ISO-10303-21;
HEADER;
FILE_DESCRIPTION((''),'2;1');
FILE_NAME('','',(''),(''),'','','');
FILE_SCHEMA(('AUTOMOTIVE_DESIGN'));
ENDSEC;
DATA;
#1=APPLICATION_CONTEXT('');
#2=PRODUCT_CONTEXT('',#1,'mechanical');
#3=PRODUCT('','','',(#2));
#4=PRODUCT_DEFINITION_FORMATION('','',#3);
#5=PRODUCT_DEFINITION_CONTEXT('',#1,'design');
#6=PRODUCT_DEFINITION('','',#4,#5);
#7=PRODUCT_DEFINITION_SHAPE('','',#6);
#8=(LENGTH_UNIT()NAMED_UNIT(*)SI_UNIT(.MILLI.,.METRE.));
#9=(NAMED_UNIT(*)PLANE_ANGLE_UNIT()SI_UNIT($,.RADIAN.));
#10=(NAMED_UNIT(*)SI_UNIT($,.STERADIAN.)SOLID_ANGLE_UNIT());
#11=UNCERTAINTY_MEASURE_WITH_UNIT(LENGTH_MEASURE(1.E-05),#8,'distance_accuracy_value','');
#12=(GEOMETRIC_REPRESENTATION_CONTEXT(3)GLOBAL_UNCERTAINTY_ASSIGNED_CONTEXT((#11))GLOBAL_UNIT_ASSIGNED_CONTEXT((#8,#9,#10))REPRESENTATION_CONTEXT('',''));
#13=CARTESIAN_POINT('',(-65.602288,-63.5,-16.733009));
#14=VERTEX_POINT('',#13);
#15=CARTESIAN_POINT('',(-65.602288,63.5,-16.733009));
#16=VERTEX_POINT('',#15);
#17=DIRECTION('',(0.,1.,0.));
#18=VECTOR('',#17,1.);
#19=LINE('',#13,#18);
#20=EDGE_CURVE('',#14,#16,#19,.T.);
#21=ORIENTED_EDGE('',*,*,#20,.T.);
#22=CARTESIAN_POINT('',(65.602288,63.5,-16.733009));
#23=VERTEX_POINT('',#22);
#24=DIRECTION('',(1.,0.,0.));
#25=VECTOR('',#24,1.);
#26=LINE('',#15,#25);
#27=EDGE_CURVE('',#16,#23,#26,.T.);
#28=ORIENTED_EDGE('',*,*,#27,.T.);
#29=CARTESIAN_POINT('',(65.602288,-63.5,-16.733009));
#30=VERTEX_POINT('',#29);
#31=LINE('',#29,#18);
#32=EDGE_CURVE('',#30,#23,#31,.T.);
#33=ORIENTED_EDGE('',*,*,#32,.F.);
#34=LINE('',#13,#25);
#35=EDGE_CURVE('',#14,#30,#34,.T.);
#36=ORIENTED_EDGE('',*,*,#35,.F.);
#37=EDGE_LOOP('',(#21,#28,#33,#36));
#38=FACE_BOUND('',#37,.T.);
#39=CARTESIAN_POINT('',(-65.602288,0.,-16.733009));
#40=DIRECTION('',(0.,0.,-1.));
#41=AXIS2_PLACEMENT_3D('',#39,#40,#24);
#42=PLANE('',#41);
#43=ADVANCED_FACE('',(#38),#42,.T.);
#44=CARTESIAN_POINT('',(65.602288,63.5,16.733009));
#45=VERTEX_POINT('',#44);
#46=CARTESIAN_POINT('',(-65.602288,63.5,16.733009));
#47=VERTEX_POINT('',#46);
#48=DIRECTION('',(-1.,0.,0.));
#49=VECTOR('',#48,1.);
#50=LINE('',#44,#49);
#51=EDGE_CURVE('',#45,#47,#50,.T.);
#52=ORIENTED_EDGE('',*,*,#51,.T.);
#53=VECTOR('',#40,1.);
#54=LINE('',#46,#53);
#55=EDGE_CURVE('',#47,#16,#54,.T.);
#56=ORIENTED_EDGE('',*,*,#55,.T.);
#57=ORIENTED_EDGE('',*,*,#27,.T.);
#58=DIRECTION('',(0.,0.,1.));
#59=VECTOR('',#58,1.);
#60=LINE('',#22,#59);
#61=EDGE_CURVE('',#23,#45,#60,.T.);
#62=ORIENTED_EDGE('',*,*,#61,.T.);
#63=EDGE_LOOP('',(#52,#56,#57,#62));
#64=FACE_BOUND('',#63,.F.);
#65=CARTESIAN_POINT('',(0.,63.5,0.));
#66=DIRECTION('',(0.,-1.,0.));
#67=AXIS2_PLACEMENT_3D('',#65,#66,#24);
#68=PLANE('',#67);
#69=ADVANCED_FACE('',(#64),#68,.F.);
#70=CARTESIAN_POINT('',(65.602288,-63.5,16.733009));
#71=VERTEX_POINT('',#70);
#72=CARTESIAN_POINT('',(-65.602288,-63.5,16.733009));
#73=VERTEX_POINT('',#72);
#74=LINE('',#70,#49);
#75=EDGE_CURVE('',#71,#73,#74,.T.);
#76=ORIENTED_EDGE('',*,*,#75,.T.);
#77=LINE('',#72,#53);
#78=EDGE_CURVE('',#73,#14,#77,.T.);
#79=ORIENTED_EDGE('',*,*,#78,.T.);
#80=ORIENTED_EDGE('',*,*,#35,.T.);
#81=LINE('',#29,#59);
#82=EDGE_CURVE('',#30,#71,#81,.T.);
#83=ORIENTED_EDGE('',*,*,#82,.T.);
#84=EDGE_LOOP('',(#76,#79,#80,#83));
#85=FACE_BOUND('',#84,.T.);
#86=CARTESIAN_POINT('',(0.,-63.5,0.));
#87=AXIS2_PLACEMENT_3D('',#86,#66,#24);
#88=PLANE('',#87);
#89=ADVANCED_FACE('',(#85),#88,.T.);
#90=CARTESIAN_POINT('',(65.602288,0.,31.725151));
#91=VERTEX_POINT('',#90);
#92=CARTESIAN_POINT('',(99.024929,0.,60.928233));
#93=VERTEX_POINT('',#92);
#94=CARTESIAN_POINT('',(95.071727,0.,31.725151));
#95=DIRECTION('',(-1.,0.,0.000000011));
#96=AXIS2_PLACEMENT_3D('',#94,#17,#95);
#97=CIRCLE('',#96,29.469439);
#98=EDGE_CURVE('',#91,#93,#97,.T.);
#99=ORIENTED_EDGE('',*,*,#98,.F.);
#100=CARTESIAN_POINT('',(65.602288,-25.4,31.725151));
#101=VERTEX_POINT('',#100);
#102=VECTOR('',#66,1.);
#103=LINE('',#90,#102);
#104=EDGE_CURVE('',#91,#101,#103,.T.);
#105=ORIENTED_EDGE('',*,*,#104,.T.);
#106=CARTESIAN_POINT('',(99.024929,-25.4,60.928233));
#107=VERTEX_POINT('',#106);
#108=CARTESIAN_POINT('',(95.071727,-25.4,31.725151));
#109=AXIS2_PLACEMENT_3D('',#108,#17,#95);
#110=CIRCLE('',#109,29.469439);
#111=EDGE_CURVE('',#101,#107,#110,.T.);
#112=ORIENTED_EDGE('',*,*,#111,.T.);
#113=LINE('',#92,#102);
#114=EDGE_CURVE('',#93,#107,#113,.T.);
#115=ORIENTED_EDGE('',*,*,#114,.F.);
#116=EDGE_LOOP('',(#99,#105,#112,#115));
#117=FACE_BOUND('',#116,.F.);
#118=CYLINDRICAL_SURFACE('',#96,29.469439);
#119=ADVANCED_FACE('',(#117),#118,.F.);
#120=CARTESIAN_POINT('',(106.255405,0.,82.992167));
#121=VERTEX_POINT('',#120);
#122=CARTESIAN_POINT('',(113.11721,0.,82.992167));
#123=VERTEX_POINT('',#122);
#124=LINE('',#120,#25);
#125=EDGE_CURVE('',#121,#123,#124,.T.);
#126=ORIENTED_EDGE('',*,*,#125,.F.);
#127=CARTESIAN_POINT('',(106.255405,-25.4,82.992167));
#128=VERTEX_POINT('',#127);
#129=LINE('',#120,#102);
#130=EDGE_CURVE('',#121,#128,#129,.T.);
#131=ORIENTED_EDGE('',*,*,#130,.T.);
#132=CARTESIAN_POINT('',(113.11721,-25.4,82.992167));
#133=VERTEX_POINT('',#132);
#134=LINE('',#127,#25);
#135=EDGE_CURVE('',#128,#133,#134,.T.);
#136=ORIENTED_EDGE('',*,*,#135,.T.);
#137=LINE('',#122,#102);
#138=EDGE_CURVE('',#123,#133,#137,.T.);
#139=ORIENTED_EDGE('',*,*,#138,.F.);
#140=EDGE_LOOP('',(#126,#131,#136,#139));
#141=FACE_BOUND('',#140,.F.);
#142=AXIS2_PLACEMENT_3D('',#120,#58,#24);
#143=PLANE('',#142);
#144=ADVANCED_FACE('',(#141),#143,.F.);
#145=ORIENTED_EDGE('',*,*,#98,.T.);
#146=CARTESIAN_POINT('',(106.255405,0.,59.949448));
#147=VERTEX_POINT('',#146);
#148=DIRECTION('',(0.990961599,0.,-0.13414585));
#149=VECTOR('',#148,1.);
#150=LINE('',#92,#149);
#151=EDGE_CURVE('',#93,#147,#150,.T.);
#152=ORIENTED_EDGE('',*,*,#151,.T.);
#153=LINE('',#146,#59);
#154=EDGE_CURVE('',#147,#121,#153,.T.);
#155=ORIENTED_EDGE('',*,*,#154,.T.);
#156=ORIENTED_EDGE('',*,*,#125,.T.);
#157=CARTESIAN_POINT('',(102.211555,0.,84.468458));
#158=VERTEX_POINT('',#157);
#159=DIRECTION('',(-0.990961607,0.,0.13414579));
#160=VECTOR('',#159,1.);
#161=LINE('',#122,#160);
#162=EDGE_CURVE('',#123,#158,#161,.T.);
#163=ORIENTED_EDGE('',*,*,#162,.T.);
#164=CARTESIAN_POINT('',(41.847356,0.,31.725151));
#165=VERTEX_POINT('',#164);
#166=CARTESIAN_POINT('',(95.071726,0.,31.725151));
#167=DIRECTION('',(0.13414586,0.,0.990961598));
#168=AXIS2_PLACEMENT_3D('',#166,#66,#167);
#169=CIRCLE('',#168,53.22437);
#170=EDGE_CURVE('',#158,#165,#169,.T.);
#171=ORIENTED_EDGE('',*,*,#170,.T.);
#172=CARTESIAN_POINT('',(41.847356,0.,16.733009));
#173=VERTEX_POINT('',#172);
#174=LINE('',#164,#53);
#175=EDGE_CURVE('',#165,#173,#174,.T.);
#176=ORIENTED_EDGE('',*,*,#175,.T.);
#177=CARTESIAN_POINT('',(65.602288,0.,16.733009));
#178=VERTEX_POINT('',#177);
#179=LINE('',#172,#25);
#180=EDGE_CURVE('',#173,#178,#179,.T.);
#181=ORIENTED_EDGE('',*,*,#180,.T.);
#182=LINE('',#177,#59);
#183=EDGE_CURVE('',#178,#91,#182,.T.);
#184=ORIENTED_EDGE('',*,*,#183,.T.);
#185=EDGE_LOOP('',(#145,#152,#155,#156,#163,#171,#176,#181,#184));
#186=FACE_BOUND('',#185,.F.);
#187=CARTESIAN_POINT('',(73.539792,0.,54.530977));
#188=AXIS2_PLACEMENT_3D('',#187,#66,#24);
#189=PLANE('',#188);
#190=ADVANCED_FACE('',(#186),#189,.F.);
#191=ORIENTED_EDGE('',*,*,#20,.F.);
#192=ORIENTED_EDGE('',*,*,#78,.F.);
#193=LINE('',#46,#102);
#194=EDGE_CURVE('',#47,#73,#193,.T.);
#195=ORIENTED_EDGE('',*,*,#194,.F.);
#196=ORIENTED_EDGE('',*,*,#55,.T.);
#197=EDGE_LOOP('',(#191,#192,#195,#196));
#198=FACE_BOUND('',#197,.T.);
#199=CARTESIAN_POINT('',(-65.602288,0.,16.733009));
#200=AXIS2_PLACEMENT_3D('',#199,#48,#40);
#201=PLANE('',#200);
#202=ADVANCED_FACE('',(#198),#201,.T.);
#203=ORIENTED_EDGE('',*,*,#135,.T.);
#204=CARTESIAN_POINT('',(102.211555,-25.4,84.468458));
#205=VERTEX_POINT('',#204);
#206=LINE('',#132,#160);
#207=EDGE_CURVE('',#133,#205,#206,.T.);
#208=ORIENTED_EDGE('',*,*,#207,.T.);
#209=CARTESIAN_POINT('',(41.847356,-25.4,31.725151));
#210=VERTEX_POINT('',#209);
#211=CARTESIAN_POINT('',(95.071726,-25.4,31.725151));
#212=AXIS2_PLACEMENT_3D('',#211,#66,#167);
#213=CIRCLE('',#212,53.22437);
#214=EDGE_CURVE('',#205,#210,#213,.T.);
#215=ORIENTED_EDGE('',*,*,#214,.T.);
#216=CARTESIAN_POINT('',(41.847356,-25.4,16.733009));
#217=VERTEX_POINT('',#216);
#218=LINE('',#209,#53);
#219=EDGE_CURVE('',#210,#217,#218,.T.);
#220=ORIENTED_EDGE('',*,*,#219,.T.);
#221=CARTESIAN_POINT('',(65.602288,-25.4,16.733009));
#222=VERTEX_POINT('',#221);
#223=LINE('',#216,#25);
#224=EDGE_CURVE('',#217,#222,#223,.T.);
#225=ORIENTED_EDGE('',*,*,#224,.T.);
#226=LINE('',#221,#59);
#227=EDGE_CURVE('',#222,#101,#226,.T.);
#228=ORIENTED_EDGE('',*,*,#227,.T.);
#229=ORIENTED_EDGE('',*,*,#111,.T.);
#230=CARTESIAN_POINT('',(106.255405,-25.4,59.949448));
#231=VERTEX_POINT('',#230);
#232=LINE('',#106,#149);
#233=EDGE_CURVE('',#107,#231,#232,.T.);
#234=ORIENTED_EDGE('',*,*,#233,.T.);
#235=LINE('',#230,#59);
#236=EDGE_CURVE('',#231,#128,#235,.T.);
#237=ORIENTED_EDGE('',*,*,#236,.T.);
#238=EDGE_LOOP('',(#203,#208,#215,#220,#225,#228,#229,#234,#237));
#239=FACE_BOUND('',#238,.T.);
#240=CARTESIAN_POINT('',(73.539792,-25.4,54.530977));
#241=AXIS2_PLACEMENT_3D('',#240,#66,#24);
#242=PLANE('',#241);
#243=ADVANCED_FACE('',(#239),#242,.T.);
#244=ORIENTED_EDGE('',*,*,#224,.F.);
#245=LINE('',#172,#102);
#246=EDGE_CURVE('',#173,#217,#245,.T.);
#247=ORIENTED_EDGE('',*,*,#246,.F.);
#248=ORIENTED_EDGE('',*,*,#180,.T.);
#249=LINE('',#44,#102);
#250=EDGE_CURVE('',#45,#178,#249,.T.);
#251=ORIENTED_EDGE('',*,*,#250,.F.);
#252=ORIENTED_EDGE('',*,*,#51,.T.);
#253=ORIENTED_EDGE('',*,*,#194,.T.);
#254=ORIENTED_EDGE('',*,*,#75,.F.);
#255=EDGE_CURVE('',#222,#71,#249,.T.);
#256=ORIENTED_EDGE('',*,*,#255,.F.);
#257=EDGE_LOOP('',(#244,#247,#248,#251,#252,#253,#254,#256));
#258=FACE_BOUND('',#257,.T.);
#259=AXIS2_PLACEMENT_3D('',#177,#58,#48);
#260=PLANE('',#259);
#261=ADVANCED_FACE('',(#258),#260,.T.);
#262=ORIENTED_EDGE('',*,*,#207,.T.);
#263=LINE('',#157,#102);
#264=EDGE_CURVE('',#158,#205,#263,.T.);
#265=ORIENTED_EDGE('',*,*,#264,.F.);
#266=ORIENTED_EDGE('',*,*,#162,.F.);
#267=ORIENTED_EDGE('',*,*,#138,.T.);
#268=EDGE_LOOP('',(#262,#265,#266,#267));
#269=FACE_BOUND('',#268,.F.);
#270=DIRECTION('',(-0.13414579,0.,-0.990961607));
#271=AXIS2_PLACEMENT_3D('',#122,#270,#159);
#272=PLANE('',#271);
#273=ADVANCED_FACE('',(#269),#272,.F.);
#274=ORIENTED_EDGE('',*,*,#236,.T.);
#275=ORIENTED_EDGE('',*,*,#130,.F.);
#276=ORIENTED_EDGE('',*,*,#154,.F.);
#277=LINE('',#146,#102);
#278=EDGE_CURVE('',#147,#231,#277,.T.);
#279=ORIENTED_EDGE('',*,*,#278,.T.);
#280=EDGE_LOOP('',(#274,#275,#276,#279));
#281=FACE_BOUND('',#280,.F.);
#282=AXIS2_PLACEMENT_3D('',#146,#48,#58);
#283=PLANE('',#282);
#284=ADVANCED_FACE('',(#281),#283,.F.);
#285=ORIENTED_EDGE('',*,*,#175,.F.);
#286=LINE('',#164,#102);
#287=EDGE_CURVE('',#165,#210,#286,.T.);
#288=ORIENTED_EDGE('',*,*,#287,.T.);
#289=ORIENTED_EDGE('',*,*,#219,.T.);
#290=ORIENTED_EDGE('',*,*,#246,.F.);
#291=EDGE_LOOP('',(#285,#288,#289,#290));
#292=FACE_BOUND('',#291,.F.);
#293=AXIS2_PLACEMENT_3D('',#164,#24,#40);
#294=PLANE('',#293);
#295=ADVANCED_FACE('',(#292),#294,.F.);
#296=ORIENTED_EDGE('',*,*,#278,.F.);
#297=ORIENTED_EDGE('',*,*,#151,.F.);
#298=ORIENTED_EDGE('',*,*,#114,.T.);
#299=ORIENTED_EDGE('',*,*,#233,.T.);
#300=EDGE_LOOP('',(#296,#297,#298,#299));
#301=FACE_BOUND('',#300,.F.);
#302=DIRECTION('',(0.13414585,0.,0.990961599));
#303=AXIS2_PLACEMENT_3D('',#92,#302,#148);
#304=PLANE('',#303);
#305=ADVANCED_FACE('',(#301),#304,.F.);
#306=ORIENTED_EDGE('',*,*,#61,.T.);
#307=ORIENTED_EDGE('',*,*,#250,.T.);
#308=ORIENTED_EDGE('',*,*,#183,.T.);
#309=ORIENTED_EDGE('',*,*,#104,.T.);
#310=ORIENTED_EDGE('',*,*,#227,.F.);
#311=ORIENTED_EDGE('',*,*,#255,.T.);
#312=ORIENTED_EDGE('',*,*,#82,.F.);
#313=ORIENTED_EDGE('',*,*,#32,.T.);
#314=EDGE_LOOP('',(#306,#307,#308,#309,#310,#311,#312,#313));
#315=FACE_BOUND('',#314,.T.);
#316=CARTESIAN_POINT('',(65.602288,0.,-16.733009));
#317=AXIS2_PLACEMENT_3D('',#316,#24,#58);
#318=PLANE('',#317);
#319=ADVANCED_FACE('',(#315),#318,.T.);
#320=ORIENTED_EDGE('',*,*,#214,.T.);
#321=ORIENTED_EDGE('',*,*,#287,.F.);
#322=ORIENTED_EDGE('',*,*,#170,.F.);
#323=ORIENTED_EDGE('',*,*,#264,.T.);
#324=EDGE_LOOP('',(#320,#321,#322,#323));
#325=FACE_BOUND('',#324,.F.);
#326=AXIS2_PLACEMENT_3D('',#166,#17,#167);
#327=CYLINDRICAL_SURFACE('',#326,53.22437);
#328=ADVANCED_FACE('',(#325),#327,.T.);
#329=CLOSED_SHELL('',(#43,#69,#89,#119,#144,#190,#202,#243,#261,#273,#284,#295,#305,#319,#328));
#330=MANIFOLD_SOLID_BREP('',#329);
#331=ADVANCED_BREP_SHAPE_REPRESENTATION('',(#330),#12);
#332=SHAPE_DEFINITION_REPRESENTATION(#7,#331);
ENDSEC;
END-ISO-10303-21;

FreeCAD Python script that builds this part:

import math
import FreeCAD as App
import Part
import Sketcher
from FreeCAD import Vector

doc = App.newDocument("Part")
params = doc.addObject("Spreadsheet::Sheet", "Params")
for row, (alias, value) in enumerate([
    ("pad1_length", "5 in"),
    ("pad2_length", "1 in"),
], start=1):
    params.set(f"A{row}", alias)
    params.set(f"B{row}", "=" + value)
    params.setAlias(f"B{row}", alias)

body = doc.addObject("PartDesign::Body", "Body")

# Sketch on XZ plane
sketch1 = doc.addObject("Sketcher::SketchObject", "Sketch")
body.addObject(sketch1)
sketch1.AttachmentSupport = (doc.XZ_Plane, [""])
sketch1.MapMode = "FlatFace"
sketch1.addGeometry([
    Part.LineSegment(Vector(66, -17, 0), Vector(66, 17, 0)),
    Part.LineSegment(Vector(66, 17, 0), Vector(-66, 17, 0)),
    Part.LineSegment(Vector(-66, 17, 0), Vector(-66, -17, 0)),
    Part.LineSegment(Vector(-66, -17, 0), Vector(66, -17, 0)),
], False)
sketch1.addConstraint([
    Sketcher.Constraint("Coincident", 0, 2, 1, 1),
    Sketcher.Constraint("Coincident", 1, 2, 2, 1),
    Sketcher.Constraint("Coincident", 2, 2, 3, 1),
    Sketcher.Constraint("Coincident", 3, 2, 0, 1),
    Sketcher.Constraint("Vertical", 0),
    Sketcher.Constraint("Horizontal", 1),
    Sketcher.Constraint("Vertical", 2),
    Sketcher.Constraint("Horizontal", 3),
    Sketcher.Constraint("Symmetric", 0, 2, 2, 2, -1, 1),
    Sketcher.Constraint("DistanceX", 1, 2, 1, 1, 131.204576),
    Sketcher.Constraint("DistanceY", 0, 1, 0, 2, 33.466018),
])
pad1 = doc.addObject("PartDesign::Pad", "Pad")
body.addObject(pad1)
pad1.Profile = sketch1
pad1.setExpression("Length", "Params.pad1_length")
pad1.Midplane = True

# Sketch on XZ plane
sketch2 = doc.addObject("Sketcher::SketchObject", "Sketch001")
body.addObject(sketch2)
sketch2.AttachmentSupport = (doc.XZ_Plane, [""])
sketch2.MapMode = "FlatFace"
sketch2.addGeometry([
    Part.LineSegment(Vector(42, 17, 0), Vector(66, 17, 0)),  # 0
    Part.LineSegment(Vector(66, 17, 0), Vector(66, 32, 0)),  # 1
    Part.ArcOfCircle(Part.Circle(Vector(95, 32, 0), Vector(0, 0, 1), 29), math.radians(82), math.radians(180)),  # 2
    Part.LineSegment(Vector(99, 61, 0), Vector(106, 60, 0)),  # 3
    Part.LineSegment(Vector(106, 60, 0), Vector(106, 83, 0)),  # 4
    Part.LineSegment(Vector(106, 83, 0), Vector(113, 83, 0)),  # 5
    Part.LineSegment(Vector(113, 83, 0), Vector(102, 84, 0)),  # 6
    Part.ArcOfCircle(Part.Circle(Vector(95, 32, 0), Vector(0, 0, 1), 53), math.radians(82), math.radians(180)),  # 7
    Part.LineSegment(Vector(42, 32, 0), Vector(42, 17, 0)),  # 8
], False)
sketch2.addConstraint([
    Sketcher.Constraint("Coincident", 0, 2, 1, 1),
    Sketcher.Constraint("Tangent", 1, 2, 2, 2),
    Sketcher.Constraint("Tangent", 2, 1, 3, 1),
    Sketcher.Constraint("Coincident", 3, 2, 4, 1),
    Sketcher.Constraint("Coincident", 4, 2, 5, 1),
    Sketcher.Constraint("Coincident", 5, 2, 6, 1),
    Sketcher.Constraint("Tangent", 6, 2, 7, 1),
    Sketcher.Constraint("Tangent", 7, 2, 8, 1),
    Sketcher.Constraint("Coincident", 8, 2, 0, 1),
    Sketcher.Constraint("Horizontal", 0),
    Sketcher.Constraint("Vertical", 1),
    Sketcher.Constraint("Vertical", 4),
    Sketcher.Constraint("Horizontal", 5),
    Sketcher.Constraint("Vertical", 8),
    Sketcher.Constraint("Coincident", 7, 3, 2, 3),
    Sketcher.Constraint("Parallel", 3, 6),
    Sketcher.Constraint("Radius", 2, 29.469439),
    Sketcher.Constraint("Radius", 7, 53.22437),
    Sketcher.Constraint("DistanceY", 4, 1, 4, 2, 23.042719),
    Sketcher.Constraint("DistanceX", 5, 1, 5, 2, 6.861805),
    Sketcher.Constraint("DistanceY", 1, 1, 1, 2, 14.992142),
    Sketcher.Constraint("DistanceY", -1, 1, 2, 3, 31.725151),
    Sketcher.Constraint("DistanceX", -1, 1, 0, 2, 65.602288),
    Sketcher.Constraint("DistanceX", -1, 1, 5, 2, 113.11721),
])
pad2 = doc.addObject("PartDesign::Pad", "Pad001")
body.addObject(pad2)
pad2.Profile = sketch2
pad2.setExpression("Length", "Params.pad2_length")

doc.recompute()
